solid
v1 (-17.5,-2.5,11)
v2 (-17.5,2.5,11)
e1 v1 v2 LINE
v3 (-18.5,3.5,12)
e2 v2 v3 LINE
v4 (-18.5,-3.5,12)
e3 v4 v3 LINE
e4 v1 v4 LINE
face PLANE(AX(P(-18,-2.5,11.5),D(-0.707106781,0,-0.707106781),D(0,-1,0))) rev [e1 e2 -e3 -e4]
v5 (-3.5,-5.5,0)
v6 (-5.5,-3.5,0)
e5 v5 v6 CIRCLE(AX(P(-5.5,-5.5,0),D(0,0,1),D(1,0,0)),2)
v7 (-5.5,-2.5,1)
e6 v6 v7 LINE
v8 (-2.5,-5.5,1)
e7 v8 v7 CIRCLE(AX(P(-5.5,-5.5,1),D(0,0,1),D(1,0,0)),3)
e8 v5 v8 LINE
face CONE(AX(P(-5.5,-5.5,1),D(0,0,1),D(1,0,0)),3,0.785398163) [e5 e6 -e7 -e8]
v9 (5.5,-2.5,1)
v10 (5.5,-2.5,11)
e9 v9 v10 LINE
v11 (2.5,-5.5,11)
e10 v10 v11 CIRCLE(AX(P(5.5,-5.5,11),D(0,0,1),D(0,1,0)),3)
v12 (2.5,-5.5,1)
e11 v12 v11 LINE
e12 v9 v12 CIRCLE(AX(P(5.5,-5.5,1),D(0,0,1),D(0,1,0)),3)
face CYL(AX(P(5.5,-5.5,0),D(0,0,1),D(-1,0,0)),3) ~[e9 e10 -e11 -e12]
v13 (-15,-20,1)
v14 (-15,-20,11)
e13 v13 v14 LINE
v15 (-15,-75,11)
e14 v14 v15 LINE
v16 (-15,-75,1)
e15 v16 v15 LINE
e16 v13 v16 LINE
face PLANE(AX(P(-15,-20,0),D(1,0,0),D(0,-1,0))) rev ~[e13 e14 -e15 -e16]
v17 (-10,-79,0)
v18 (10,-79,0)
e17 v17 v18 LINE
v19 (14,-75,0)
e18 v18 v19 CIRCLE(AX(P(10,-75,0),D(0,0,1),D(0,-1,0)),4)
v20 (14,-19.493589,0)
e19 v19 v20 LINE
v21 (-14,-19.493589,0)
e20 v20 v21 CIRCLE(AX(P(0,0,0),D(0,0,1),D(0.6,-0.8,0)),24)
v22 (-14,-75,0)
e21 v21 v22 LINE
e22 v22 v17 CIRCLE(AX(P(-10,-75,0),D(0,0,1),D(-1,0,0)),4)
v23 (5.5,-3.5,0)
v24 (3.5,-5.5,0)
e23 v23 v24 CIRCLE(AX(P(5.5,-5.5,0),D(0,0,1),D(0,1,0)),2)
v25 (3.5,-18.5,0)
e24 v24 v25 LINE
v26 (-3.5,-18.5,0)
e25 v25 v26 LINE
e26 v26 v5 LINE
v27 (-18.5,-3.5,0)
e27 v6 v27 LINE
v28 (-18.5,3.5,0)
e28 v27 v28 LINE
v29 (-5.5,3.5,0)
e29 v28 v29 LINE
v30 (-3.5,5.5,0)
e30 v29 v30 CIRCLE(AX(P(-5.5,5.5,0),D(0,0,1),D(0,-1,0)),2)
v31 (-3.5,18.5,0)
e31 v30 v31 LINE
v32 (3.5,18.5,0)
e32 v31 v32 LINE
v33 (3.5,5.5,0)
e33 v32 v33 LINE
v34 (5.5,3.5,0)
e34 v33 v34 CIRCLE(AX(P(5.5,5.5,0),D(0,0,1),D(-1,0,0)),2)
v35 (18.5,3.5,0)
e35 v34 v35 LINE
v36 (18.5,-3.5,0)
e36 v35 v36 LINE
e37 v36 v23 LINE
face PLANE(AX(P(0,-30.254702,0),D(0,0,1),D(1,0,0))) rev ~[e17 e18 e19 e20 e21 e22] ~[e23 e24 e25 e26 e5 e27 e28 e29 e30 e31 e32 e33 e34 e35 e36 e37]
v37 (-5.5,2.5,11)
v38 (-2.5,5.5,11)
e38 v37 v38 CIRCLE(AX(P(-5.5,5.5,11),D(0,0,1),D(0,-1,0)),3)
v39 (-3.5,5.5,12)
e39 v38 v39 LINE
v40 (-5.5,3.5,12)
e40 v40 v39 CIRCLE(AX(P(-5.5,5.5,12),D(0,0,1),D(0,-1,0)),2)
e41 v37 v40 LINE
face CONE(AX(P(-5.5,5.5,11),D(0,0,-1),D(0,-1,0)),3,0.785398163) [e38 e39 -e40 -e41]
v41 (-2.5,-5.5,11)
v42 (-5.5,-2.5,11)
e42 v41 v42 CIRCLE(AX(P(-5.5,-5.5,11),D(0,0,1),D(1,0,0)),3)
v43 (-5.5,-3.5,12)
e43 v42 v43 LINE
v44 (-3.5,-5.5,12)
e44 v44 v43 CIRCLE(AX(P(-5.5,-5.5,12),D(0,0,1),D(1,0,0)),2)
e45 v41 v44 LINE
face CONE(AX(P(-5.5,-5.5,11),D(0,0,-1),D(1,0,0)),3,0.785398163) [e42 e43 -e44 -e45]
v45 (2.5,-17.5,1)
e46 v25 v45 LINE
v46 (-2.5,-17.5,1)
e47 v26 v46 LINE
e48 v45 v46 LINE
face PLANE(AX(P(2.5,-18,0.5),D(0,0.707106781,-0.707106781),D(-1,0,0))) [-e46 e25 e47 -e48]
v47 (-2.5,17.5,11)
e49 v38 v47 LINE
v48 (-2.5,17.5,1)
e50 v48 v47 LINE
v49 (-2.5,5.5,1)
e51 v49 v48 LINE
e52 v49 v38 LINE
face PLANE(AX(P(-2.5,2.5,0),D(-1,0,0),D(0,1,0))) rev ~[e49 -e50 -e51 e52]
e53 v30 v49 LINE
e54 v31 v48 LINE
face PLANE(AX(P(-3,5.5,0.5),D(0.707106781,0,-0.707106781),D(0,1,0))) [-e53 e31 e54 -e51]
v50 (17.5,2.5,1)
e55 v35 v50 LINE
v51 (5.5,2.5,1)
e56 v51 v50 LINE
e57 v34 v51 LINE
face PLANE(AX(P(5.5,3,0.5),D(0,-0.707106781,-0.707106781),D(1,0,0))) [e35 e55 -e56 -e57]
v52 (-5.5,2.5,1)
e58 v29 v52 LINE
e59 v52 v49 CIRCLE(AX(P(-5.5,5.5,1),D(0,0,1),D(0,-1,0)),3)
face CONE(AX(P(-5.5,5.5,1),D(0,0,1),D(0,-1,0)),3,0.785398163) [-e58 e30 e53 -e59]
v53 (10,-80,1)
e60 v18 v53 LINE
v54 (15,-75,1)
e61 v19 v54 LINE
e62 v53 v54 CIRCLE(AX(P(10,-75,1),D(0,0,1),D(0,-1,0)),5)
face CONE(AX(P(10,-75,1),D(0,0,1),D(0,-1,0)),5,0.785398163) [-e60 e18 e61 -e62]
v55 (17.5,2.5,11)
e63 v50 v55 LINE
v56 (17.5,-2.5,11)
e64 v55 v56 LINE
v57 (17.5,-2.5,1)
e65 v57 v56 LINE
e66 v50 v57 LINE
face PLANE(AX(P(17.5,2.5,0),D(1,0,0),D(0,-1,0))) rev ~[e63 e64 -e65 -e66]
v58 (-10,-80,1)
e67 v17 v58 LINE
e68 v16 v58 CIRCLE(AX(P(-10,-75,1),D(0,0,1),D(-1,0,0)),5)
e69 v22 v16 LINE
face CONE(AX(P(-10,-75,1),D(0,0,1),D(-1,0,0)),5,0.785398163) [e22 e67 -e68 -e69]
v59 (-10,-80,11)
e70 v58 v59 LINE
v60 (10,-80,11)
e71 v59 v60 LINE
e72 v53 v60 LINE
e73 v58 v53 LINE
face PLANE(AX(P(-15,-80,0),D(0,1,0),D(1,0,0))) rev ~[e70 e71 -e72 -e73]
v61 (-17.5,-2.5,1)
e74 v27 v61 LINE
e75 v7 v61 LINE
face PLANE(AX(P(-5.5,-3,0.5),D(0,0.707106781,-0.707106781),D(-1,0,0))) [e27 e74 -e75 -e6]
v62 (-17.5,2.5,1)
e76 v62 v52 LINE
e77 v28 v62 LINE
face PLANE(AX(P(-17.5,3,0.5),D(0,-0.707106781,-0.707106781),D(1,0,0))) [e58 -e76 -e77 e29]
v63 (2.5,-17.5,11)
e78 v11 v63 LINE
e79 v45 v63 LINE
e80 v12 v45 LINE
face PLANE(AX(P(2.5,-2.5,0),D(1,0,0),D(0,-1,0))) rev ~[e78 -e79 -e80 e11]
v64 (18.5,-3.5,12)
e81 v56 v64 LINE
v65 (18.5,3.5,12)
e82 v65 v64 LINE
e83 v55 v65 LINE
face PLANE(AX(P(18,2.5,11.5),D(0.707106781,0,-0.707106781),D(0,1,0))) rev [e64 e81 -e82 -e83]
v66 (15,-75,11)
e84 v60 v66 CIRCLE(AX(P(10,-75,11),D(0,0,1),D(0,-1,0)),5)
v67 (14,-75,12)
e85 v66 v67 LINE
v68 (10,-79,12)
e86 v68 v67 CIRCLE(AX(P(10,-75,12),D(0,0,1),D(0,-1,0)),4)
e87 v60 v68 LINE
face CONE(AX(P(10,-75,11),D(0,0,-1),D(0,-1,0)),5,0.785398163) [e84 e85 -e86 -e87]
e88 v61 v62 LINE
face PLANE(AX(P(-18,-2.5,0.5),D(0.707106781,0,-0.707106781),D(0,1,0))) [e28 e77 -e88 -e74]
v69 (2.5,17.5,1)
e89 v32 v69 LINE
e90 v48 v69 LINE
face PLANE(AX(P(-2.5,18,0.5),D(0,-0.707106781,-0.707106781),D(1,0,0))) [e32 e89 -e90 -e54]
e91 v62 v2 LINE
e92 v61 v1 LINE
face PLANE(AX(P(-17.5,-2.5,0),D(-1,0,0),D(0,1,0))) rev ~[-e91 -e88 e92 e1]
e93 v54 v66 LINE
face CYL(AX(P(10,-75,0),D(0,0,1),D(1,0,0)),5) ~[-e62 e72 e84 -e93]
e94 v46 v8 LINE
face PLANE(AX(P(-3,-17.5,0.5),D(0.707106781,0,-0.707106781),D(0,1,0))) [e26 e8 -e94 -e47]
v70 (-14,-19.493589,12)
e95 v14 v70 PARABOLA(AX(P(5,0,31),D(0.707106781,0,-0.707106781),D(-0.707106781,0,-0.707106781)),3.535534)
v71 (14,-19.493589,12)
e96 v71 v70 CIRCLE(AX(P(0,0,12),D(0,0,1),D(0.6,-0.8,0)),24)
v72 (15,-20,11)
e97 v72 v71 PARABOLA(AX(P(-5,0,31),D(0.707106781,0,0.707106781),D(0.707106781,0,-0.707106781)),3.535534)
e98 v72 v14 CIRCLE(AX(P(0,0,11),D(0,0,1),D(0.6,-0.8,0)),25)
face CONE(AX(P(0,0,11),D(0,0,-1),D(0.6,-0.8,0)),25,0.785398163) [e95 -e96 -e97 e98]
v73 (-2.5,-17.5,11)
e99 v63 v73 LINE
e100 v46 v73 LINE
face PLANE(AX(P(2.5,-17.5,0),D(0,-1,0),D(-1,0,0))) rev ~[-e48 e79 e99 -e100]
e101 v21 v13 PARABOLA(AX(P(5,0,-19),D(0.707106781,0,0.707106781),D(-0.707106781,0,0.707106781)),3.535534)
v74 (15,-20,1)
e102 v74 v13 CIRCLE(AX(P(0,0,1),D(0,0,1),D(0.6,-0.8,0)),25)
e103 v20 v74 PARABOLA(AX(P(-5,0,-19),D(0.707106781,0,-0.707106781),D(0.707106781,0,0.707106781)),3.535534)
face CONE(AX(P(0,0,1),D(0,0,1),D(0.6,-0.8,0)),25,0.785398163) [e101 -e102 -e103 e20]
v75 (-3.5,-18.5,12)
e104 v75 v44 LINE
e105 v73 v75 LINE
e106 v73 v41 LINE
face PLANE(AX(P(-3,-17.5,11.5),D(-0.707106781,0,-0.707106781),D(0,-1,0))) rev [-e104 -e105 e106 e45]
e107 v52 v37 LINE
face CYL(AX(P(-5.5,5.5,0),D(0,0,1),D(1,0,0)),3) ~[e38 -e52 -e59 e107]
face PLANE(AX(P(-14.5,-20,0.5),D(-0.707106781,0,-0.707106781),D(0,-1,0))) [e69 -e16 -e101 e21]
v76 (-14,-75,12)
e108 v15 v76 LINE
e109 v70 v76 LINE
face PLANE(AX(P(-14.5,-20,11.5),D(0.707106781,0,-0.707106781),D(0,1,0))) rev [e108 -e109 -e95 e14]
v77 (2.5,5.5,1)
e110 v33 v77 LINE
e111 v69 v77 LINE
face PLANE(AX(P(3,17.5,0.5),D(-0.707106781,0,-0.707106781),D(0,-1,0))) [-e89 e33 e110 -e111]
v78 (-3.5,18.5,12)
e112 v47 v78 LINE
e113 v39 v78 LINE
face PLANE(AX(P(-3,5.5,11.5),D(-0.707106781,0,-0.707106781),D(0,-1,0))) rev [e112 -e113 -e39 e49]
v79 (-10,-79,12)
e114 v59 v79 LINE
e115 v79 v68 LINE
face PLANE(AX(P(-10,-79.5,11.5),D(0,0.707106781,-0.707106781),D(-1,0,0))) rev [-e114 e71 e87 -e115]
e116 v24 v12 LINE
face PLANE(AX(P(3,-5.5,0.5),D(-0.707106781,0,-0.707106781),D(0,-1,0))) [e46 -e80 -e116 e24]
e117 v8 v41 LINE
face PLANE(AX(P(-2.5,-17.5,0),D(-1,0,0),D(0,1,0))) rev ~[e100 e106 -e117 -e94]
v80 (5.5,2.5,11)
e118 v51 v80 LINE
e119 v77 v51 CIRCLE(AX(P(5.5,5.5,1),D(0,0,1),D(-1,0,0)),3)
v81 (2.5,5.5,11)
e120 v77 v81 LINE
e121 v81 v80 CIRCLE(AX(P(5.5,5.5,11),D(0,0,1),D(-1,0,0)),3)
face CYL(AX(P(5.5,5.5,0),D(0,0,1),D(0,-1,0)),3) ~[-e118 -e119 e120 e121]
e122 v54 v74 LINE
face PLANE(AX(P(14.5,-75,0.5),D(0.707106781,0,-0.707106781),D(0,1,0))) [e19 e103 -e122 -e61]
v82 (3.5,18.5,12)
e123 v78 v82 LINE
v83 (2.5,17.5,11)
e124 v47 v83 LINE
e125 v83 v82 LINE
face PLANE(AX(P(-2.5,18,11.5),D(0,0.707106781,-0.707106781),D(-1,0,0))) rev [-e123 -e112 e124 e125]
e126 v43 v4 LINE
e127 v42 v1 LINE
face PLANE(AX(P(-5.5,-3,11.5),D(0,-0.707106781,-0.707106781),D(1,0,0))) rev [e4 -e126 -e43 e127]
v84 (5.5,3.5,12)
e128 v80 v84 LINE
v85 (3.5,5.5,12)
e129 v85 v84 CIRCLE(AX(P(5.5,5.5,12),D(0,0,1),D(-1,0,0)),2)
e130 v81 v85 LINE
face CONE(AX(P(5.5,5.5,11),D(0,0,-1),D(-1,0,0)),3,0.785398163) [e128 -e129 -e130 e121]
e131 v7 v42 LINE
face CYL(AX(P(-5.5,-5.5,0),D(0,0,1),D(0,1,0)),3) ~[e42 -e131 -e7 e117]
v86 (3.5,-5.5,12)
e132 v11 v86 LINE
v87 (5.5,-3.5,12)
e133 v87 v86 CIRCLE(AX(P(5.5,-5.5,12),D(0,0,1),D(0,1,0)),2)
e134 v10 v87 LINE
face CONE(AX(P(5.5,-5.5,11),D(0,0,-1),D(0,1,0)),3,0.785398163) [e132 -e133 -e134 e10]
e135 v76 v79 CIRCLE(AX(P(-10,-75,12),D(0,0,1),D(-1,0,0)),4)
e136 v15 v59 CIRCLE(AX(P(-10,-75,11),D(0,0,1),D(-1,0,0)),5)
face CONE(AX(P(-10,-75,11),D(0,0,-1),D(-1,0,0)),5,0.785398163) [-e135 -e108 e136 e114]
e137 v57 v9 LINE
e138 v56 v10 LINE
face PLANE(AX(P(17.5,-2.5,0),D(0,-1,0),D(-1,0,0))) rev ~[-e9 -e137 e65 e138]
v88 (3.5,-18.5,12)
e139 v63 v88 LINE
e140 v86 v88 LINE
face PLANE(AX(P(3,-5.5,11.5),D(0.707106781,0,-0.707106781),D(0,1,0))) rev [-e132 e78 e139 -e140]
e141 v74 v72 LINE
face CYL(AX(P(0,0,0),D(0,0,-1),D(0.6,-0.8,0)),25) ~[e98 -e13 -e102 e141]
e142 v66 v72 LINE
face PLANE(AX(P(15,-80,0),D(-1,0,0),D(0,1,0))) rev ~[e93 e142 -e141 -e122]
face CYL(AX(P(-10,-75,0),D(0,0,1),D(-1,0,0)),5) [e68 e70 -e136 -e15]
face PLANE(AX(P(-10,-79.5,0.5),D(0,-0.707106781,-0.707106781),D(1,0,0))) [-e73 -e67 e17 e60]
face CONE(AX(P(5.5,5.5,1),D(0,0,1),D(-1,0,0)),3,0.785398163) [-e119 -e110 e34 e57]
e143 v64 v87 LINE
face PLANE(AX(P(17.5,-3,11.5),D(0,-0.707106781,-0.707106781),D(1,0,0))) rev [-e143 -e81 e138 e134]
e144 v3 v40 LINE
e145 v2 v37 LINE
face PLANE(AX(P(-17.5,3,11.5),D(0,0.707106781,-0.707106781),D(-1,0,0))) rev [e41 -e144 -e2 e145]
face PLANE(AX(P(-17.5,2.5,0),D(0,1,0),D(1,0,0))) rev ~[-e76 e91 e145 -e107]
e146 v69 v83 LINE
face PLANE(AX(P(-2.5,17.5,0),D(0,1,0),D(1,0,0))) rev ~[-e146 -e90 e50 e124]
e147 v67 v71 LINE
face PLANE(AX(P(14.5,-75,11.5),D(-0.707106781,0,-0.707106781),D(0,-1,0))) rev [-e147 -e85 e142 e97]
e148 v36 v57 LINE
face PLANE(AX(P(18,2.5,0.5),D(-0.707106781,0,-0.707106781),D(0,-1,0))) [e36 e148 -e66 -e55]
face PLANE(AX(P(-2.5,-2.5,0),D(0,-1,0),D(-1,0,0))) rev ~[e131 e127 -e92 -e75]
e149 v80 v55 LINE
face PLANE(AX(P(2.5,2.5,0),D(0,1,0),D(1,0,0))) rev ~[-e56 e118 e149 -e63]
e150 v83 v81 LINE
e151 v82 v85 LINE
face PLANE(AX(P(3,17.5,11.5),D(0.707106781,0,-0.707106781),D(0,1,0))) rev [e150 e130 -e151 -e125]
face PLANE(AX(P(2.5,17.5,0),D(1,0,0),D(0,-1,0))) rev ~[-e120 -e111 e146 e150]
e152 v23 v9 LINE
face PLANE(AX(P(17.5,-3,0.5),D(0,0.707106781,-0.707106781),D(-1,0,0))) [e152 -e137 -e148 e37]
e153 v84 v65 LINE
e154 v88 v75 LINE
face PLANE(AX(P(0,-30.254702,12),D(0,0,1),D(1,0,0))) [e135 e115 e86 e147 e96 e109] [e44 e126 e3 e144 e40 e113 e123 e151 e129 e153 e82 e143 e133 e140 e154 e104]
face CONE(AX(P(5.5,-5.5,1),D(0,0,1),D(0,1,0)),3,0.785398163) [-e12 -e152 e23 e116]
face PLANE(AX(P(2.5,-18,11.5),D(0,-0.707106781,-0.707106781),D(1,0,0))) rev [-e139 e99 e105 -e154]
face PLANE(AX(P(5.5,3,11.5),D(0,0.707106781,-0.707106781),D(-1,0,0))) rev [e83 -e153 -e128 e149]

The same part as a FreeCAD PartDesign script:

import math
import FreeCAD as App
import Part
import Sketcher
from FreeCAD import Vector


def edges_at(feature, points):
    """Names of the edges that pass closest to the given points."""
    edges = feature.Shape.Edges
    near = lambda p: min(range(len(edges)), key=lambda i: edges[i].distToShape(Part.Vertex(*p))[0])
    return sorted({f"Edge{near(p) + 1}" for p in points})

doc = App.newDocument("Part")
params = doc.addObject("Spreadsheet::Sheet", "Params")
for row, (alias, value) in enumerate([
    ("sketch1_radius", "25 mm"),
    ("sketch1_width", "30 mm"),
    ("sketch1_width2", "15 mm"),
    ("sketch1_width3", "5 mm"),
    ("sketch1_height", "60 mm"),
    ("pad1_length", "12 mm"),
    ("fillet_radius", "5 mm"),
    ("fillet2_radius", "3 mm"),
    ("chamfer_size", "1 mm"),
], start=1):
    params.set(f"A{row}", alias)
    params.set(f"B{row}", "=" + value)
    params.setAlias(f"B{row}", alias)

body = doc.addObject("PartDesign::Body", "Body")

# Sketch on XY plane
sketch1 = doc.addObject("Sketcher::SketchObject", "Sketch")
body.addObject(sketch1)
sketch1.AttachmentSupport = (doc.XY_Plane, [""])
sketch1.MapMode = "FlatFace"
sketch1.addGeometry(Part.ArcOfCircle(Part.Circle(Vector(0, 0, 0), Vector(0, 0, 1), 25), math.radians(-53.130102), math.radians(233.130102)), False)
sketch1.addGeometry(Part.LineSegment(Vector(-15, -20, 0), Vector(-15, -80, 0)), False)
sketch1.addGeometry(Part.LineSegment(Vector(-15, -80, 0), Vector(15, -80, 0)), False)
sketch1.addGeometry(Part.LineSegment(Vector(15, -80, 0), Vector(15, -20, 0)), False)
sketch1.addGeometry(Part.LineSegment(Vector(-17.5, -2.5, 0), Vector(-17.5, 2.5, 0)), False)
sketch1.addGeometry(Part.LineSegment(Vector(-17.5, 2.5, 0), Vector(-2.5, 2.5, 0)), False)
sketch1.addGeometry(Part.LineSegment(Vector(-2.5, 2.5, 0), Vector(-2.5, 17.5, 0)), False)
sketch1.addGeometry(Part.LineSegment(Vector(-2.5, 17.5, 0), Vector(2.5, 17.5, 0)), False)
sketch1.addGeometry(Part.LineSegment(Vector(2.5, 17.5, 0), Vector(2.5, 2.5, 0)), False)
sketch1.addGeometry(Part.LineSegment(Vector(2.5, 2.5, 0), Vector(17.5, 2.5, 0)), False)
sketch1.addGeometry(Part.LineSegment(Vector(17.5, 2.5, 0), Vector(17.5, -2.5, 0)), False)
sketch1.addGeometry(Part.LineSegment(Vector(17.5, -2.5, 0), Vector(2.5, -2.5, 0)), False)
sketch1.addGeometry(Part.LineSegment(Vector(2.5, -2.5, 0), Vector(2.5, -17.5, 0)), False)
sketch1.addGeometry(Part.LineSegment(Vector(2.5, -17.5, 0), Vector(-2.5, -17.5, 0)), False)
sketch1.addGeometry(Part.LineSegment(Vector(-2.5, -17.5, 0), Vector(-2.5, -2.5, 0)), False)
sketch1.addGeometry(Part.LineSegment(Vector(-2.5, -2.5, 0), Vector(-17.5, -2.5, 0)), False)
sketch1.addConstraint(Sketcher.Constraint("Coincident", 0, 2, 1, 1))
sketch1.addConstraint(Sketcher.Constraint("Coincident", 1, 2, 2, 1))
sketch1.addConstraint(Sketcher.Constraint("Coincident", 2, 2, 3, 1))
sketch1.addConstraint(Sketcher.Constraint("Coincident", 3, 2, 0, 1))
sketch1.addConstraint(Sketcher.Constraint("Coincident", 4, 2, 5, 1))
sketch1.addConstraint(Sketcher.Constraint("Coincident", 5, 2, 6, 1))
sketch1.addConstraint(Sketcher.Constraint("Coincident", 6, 2, 7, 1))
sketch1.addConstraint(Sketcher.Constraint("Coincident", 7, 2, 8, 1))
sketch1.addConstraint(Sketcher.Constraint("Coincident", 8, 2, 9, 1))
sketch1.addConstraint(Sketcher.Constraint("Coincident", 9, 2, 10, 1))
sketch1.addConstraint(Sketcher.Constraint("Coincident", 10, 2, 11, 1))
sketch1.addConstraint(Sketcher.Constraint("Coincident", 11, 2, 12, 1))
sketch1.addConstraint(Sketcher.Constraint("Coincident", 12, 2, 13, 1))
sketch1.addConstraint(Sketcher.Constraint("Coincident", 13, 2, 14, 1))
sketch1.addConstraint(Sketcher.Constraint("Coincident", 14, 2, 15, 1))
sketch1.addConstraint(Sketcher.Constraint("Coincident", 15, 2, 4, 1))
sketch1.addConstraint(Sketcher.Constraint("Vertical", 1))
sketch1.addConstraint(Sketcher.Constraint("Horizontal", 2))
sketch1.addConstraint(Sketcher.Constraint("Vertical", 3))
sketch1.addConstraint(Sketcher.Constraint("Vertical", 4))
sketch1.addConstraint(Sketcher.Constraint("Horizontal", 5))
sketch1.addConstraint(Sketcher.Constraint("Vertical", 6))
sketch1.addConstraint(Sketcher.Constraint("Horizontal", 7))
sketch1.addConstraint(Sketcher.Constraint("Vertical", 8))
sketch1.addConstraint(Sketcher.Constraint("Horizontal", 9))
sketch1.addConstraint(Sketcher.Constraint("Vertical", 10))
sketch1.addConstraint(Sketcher.Constraint("Horizontal", 11))
sketch1.addConstraint(Sketcher.Constraint("Vertical", 12))
sketch1.addConstraint(Sketcher.Constraint("Horizontal", 13))
sketch1.addConstraint(Sketcher.Constraint("Vertical", 14))
sketch1.addConstraint(Sketcher.Constraint("Horizontal", 15))
sketch1.addConstraint(Sketcher.Constraint("Coincident", 0, 3, -1, 1))
sketch1.addConstraint(Sketcher.Constraint("Symmetric", 4, 2, 10, 2, -1, 1))
sketch1.addConstraint(Sketcher.Constraint("Symmetric", 6, 2, 12, 2, -1, 1))
sketch1.addConstraint(Sketcher.Constraint("Symmetric", 8, 2, 14, 2, -1, 1))
sketch1.addConstraint(Sketcher.Constraint("Symmetric", 5, 2, 8, 2, -2))
sketch1.addConstraint(Sketcher.Constraint("Horizontal", 0, 2, 3, 2))
sketch1.addConstraint(Sketcher.Constraint("Equal", 13, 4))
sketch1.addConstraint(Sketcher.Constraint("Equal", 15, 6))
sketch1.addConstraint(Sketcher.Constraint("Radius", 0, 25.0))
sketch1.addConstraint(Sketcher.Constraint("DistanceX", 2, 1, 2, 2, 30.0))
sketch1.addConstraint(Sketcher.Constraint("DistanceX", 5, 1, 5, 2, 15.0))
sketch1.addConstraint(Sketcher.Constraint("DistanceX", 7, 1, 7, 2, 5.0))
sketch1.addConstraint(Sketcher.Constraint("DistanceY", 1, 2, 1, 1, 60.0))
sketch1.setExpression("Constraints[39]", "Params.sketch1_radius")
sketch1.setExpression("Constraints[40]", "Params.sketch1_width")
sketch1.setExpression("Constraints[41]", "Params.sketch1_width2")
sketch1.setExpression("Constraints[42]", "Params.sketch1_width3")
sketch1.setExpression("Constraints[43]", "Params.sketch1_height")
pad1 = doc.addObject("PartDesign::Pad", "Pad")
body.addObject(pad1)
pad1.Profile = sketch1
pad1.setExpression("Length", "Params.pad1_length")
doc.recompute()

fillet = doc.addObject("PartDesign::Fillet", "Fillet")
body.addObject(fillet)
fillet.Base = (pad1, edges_at(pad1, [(-15, -80, 6), (15, -80, 6)]))
fillet.setExpression("Radius", "Params.fillet_radius")
doc.recompute()

fillet2 = doc.addObject("PartDesign::Fillet", "Fillet001")
body.addObject(fillet2)
fillet2.Base = (fillet, edges_at(fillet, [
    (-2.5, 2.5, 6),
    (2.5, 2.5, 6),
    (2.5, -2.5, 6),
    (-2.5, -2.5, 6),
]))
fillet2.setExpression("Radius", "Params.fillet2_radius")
doc.recompute()

chamfer = doc.addObject("PartDesign::Chamfer", "Chamfer")
body.addObject(chamfer)
chamfer.Base = (fillet2, edges_at(fillet2, [
    (-11.5, 2.5, 0),
    (-3.379, 3.379, 0),
    (-17.5, 0, 0),
    (-2.5, 11.5, 0),
    (-11.5, -2.5, 0),
    (0, 17.5, 0),
    (-3.379, -3.379, 0),
    (2.5, 11.5, 0),
    (-2.5, -11.5, 0),
    (3.379, 3.379, 0),
    (0, -17.5, 0),
    (11.5, 2.5, 0),
    (2.5, -11.5, 0),
    (17.5, 0, 0),
    (3.379, -3.379, 0),
    (11.5, -2.5, 0),
    (-15, -47.5, 0),
    (-13.536, -78.536, 0),
    (0, 25, 0),
    (0, -80, 0),
    (15, -47.5, 0),
    (13.536, -78.536, 0),
    (-11.5, 2.5, 12),
    (-3.379, 3.379, 12),
    (-17.5, 0, 12),
    (-2.5, 11.5, 12),
    (-11.5, -2.5, 12),
    (0, 17.5, 12),
    (-3.379, -3.379, 12),
    (2.5, 11.5, 12),
    (-2.5, -11.5, 12),
    (3.379, 3.379, 12),
    (0, -17.5, 12),
    (11.5, 2.5, 12),
    (2.5, -11.5, 12),
    (17.5, 0, 12),
    (3.379, -3.379, 12),
    (11.5, -2.5, 12),
    (-15, -47.5, 12),
    (-13.536, -78.536, 12),
    (0, 25, 12),
    (0, -80, 12),
    (15, -47.5, 12),
    (13.536, -78.536, 12),
]))
chamfer.setExpression("Size", "Params.chamfer_size")

doc.recompute()
